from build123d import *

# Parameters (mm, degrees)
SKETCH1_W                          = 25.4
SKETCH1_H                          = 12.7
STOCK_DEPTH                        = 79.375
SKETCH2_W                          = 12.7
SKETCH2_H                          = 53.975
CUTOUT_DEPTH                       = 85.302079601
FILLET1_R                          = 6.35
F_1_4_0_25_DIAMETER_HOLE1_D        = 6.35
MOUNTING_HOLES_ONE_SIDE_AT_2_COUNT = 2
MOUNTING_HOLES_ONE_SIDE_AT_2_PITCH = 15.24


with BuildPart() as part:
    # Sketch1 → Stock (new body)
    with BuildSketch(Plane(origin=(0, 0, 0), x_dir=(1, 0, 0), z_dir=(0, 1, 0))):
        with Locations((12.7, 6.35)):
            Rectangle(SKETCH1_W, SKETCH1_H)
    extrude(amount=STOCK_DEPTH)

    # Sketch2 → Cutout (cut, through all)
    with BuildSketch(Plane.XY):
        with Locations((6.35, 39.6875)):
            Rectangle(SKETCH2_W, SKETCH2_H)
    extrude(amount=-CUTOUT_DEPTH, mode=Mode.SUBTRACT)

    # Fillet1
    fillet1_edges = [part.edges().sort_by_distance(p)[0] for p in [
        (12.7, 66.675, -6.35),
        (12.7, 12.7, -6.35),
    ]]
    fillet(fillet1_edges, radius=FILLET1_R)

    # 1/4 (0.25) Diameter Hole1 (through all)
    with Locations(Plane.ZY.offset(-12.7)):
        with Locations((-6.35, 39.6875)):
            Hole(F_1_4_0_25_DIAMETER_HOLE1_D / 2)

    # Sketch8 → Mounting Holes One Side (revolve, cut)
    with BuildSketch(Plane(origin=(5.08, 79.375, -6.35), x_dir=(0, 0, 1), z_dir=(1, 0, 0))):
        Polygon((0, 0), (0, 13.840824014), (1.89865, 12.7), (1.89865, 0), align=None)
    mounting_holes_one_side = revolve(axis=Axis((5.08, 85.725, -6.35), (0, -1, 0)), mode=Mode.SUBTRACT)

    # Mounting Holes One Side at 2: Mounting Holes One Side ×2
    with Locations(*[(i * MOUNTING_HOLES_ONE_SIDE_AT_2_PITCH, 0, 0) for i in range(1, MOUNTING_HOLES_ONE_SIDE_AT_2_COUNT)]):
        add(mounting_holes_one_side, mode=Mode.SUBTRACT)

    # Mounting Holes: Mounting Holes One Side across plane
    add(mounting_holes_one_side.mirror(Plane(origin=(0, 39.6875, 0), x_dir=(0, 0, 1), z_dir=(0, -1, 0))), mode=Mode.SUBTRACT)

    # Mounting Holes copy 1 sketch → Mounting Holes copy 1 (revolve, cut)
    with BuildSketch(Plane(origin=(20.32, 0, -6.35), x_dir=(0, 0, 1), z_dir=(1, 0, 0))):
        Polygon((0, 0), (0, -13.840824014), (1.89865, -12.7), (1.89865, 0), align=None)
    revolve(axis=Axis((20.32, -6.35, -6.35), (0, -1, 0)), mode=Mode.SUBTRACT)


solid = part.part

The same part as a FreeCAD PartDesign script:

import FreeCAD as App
import Part
import Sketcher
from FreeCAD import Vector
Q = App.Units.Quantity


def edges_at(feature, points):
    """Names of the edges that pass closest to the given points."""
    edges = feature.Shape.Edges
    near = lambda p: min(range(len(edges)), key=lambda i: edges[i].distToShape(Part.Vertex(*p))[0])
    return sorted({f"Edge{near(p) + 1}" for p in points})


def add_polygon(sketch, points):
    """Adds a closed chain of lines whose ends are joined by coincident constraints."""
    first, n = sketch.GeometryCount, len(points)
    for a, b in zip(points, points[1:] + points[:1]):
        sketch.addGeometry(Part.LineSegment(App.Vector(*a, 0), App.Vector(*b, 0)), False)
    for i in range(n):
        sketch.addConstraint(Sketcher.Constraint("Coincident", first + i, 2, first + (i + 1) % n, 1))

doc = App.newDocument("Part")
body = doc.addObject("PartDesign::Body", "Body")

sketch1 = doc.addObject("Sketcher::SketchObject", "Sketch")
body.addObject(sketch1)
sketch1.AttachmentSupport = (doc.XZ_Plane, [""])
sketch1.MapMode = "FlatFace"
add_polygon(sketch1, [(0, -12.7), (0, 0), (25.4, 0), (25.4, -12.7)])
sketch1.addConstraint([
    Sketcher.Constraint("Vertical", 0),
    Sketcher.Constraint("Horizontal", 1),
    Sketcher.Constraint("Vertical", 2),
    Sketcher.Constraint("Horizontal", 3),
    Sketcher.Constraint("Coincident", 0, 2, -1, 1),
    Sketcher.Constraint("DistanceX", 1, 1, 1, 2, Q("1 in")),
    Sketcher.Constraint("DistanceY", 0, 1, 0, 2, Q("0.5 in")),
])
pad1 = doc.addObject("PartDesign::Pad", "Pad")
body.addObject(pad1)
pad1.Profile = sketch1
pad1.Length = Q("3.125 in")
pad1.Reversed = True

sketch2 = doc.addObject("Sketcher::SketchObject", "Sketch001")
body.addObject(sketch2)
sketch2.AttachmentSupport = (doc.XY_Plane, [""])
sketch2.MapMode = "FlatFace"
add_polygon(sketch2, [(0, 66.675), (0, 12.7), (12.7, 12.7), (12.7, 66.675)])
sketch2.addConstraint([
    Sketcher.Constraint("Vertical", 0),
    Sketcher.Constraint("Horizontal", 1),
    Sketcher.Constraint("Vertical", 2),
    Sketcher.Constraint("Horizontal", 3),
    Sketcher.Constraint("PointOnObject", 0, 2, -2),
    Sketcher.Constraint("DistanceX", 1, 1, 1, 2, Q("0.5 in")),
    Sketcher.Constraint("DistanceY", -1, 1, 0, 2, Q("0.5 in")),
    Sketcher.Constraint("DistanceY", 0, 2, 0, 1, Q("2.125 in")),
])
pocket1 = doc.addObject("PartDesign::Pocket", "Pocket")
body.addObject(pocket1)
pocket1.Profile = sketch2
pocket1.Type = "ThroughAll"
doc.recompute()

fillet = doc.addObject("PartDesign::Fillet", "Fillet")
body.addObject(fillet)
fillet.Base = (pocket1, edges_at(pocket1, [(12.7, 66.675, -6.35), (12.7, 12.7, -6.35)]))
fillet.Radius = Q("0.25 in")

sketch3 = doc.addObject("Sketcher::SketchObject", "Sketch002")
body.addObject(sketch3)
sketch3.AttachmentSupport = (doc.YZ_Plane, [""])
sketch3.MapMode = "FlatFace"
sketch3.AttachmentOffset = App.Placement(Vector(0, 0, 0.5 * 25.4), App.Rotation())
sketch3.addGeometry(Part.Circle(Vector(39.6875, -6.35, 0), Vector(0, 0, 1), 3.175), False)
sketch3.addConstraint([
    Sketcher.Constraint("Diameter", 0, Q("0.25 in")),
    Sketcher.Constraint("DistanceY", 0, 3, -1, 1, Q("0.25 in")),
    Sketcher.Constraint("DistanceX", -1, 1, 0, 3, Q("1.5625 in")),
])
doc.recompute()
hole = doc.addObject("PartDesign::Hole", "Hole")
body.addObject(hole)
hole.Profile = sketch3
hole.ThreadType = "None"
hole.Diameter = Q("0.25 in")
hole.DepthType = "ThroughAll"
hole.Reversed = True

sketch4 = doc.addObject("Sketcher::SketchObject", "Sketch003")
body.addObject(sketch4)
sketch4.AttachmentSupport = (doc.YZ_Plane, [""])
sketch4.MapMode = "FlatFace"
sketch4.AttachmentOffset = App.Placement(Vector(0, 0, 0.2 * 25.4), App.Rotation())
add_polygon(sketch4, [(65.534176, -6.35), (79.375, -6.35), (79.375, -4.45135), (66.675, -4.45135)])
sketch4.addGeometry(Part.LineSegment(Vector(79.375, -6.35, 0), Vector(65.534176, -6.35, 0)), True)
sketch4.addConstraint([
    Sketcher.Constraint("Horizontal", 0),
    Sketcher.Constraint("Vertical", 1),
    Sketcher.Constraint("Horizontal", 2),
    Sketcher.Constraint("Horizontal", 4),
    Sketcher.Constraint("Coincident", 4, 1, 0, 2),
    Sketcher.Constraint("Equal", 0, 4),
    Sketcher.Constraint("DistanceX", 2, 2, 2, 1, Q("0.5 in")),
    Sketcher.Constraint("Angle", 3, Q("-121 deg")),
    Sketcher.Constraint("DistanceY", 0, 2, -1, 1, Q("0.25 in")),
    Sketcher.Constraint("DistanceX", -1, 1, 0, 2, Q("3.125 in")),
    Sketcher.Constraint("DistanceY", 1, 1, 1, 2, Q("1.89865 mm")),
])
groove = doc.addObject("PartDesign::Groove", "Groove")
body.addObject(groove)
groove.Profile = sketch4
groove.ReferenceAxis = (sketch4, ["Axis0"])
groove.Angle = 360
doc.recompute()

linearpattern = doc.addObject("PartDesign::LinearPattern", "LinearPattern")
body.addObject(linearpattern)
linearpattern.Originals = [groove]
linearpattern.Direction = (doc.X_Axis, [""])
linearpattern.Mode = "offset"
linearpattern.Offset = Q("0.6 in")
linearpattern.Occurrences = 2
body.Tip = linearpattern
doc.recompute()

datumplane = doc.addObject("PartDesign::Plane", "DatumPlane")
body.addObject(datumplane)
datumplane.AttachmentSupport = (doc.XZ_Plane, [""])
datumplane.MapMode = "FlatFace"
datumplane.AttachmentOffset = App.Placement(Vector(0, 0, -1.5625 * 25.4), App.Rotation())
mirrored = doc.addObject("PartDesign::Mirrored", "Mirrored")
body.addObject(mirrored)
mirrored.Originals = [groove]
mirrored.MirrorPlane = (datumplane, [""])
body.Tip = mirrored

sketch5 = doc.addObject("Sketcher::SketchObject", "Sketch004")
body.addObject(sketch5)
sketch5.AttachmentSupport = (doc.YZ_Plane, [""])
sketch5.MapMode = "FlatFace"
sketch5.AttachmentOffset = App.Placement(Vector(0, 0, 0.8 * 25.4), App.Rotation())
add_polygon(sketch5, [(0, -6.35), (13.840824, -6.35), (12.7, -4.45135), (0, -4.45135)])
sketch5.addGeometry(Part.LineSegment(Vector(13.840824, -6.35, 0), Vector(0, -6.35, 0)), True)
sketch5.addConstraint([
    Sketcher.Constraint("Horizontal", 0),
    Sketcher.Constraint("Horizontal", 2),
    Sketcher.Constraint("Vertical", 3),
    Sketcher.Constraint("Horizontal", 4),
    Sketcher.Constraint("Coincident", 4, 1, 0, 2),
    Sketcher.Constraint("PointOnObject", 2, 2, -2),
    Sketcher.Constraint("PointOnObject", 4, 2, -2),
    Sketcher.Constraint("DistanceX", 2, 2, 2, 1, Q("0.5 in")),
    Sketcher.Constraint("Angle", 1, Q("121 deg")),
    Sketcher.Constraint("DistanceY", 0, 2, -1, 1, Q("0.25 in")),
    Sketcher.Constraint("DistanceY", 3, 2, 3, 1, Q("1.89865 mm")),
])
groove2 = doc.addObject("PartDesign::Groove", "Groove001")
body.addObject(groove2)
groove2.Profile = sketch5
groove2.ReferenceAxis = (sketch5, ["Axis0"])
groove2.Angle = 360

doc.recompute()
